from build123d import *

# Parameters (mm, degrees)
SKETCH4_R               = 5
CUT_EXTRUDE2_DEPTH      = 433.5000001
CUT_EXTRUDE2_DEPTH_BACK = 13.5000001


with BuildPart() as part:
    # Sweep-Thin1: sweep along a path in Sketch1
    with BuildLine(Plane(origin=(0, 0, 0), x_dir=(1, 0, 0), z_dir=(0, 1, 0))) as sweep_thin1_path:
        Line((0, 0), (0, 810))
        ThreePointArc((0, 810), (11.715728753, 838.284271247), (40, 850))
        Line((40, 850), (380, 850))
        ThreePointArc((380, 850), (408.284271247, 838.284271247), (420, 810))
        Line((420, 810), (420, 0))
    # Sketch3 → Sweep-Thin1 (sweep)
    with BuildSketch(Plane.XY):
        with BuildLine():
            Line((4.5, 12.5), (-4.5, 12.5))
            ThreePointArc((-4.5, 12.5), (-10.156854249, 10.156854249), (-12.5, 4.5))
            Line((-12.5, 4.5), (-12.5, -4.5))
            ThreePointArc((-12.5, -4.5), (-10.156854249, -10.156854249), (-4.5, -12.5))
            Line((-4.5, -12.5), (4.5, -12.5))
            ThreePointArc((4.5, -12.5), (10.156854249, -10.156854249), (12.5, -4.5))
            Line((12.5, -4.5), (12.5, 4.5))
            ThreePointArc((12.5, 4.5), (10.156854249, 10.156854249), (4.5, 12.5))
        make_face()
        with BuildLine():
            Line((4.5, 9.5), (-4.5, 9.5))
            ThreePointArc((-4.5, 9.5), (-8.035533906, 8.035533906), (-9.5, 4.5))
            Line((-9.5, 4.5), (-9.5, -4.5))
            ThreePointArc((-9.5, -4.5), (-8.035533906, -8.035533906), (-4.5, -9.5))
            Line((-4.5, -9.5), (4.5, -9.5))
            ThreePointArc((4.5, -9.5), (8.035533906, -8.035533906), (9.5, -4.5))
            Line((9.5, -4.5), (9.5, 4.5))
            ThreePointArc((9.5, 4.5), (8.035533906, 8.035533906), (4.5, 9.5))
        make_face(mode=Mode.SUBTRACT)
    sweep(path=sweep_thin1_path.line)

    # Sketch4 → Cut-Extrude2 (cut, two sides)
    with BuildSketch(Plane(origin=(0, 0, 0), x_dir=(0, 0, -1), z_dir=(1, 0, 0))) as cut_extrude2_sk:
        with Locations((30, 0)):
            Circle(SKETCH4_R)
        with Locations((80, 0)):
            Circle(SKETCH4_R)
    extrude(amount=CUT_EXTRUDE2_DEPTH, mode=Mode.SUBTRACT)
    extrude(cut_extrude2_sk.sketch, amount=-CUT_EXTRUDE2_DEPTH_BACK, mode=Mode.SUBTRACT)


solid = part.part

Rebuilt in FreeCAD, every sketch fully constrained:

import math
import FreeCAD as App
import Part
import Sketcher
from FreeCAD import Vector
Q = App.Units.Quantity

doc = App.newDocument("Part")
body = doc.addObject("PartDesign::Body", "Body")

# Sketch on XY plane
sketch1 = doc.addObject("Sketcher::SketchObject", "Sketch")
body.addObject(sketch1)
sketch1.AttachmentSupport = (doc.XY_Plane, [""])
sketch1.MapMode = "FlatFace"
sketch1.addGeometry([
    Part.LineSegment(Vector(4, 12, 0), Vector(-4, 12, 0)),  # 0
    Part.ArcOfCircle(Part.Circle(Vector(-4, 4, 0), Vector(0, 0, 1), 8), math.radians(90), math.radians(180)),  # 1
    Part.LineSegment(Vector(-12, 4, 0), Vector(-12, -4, 0)),  # 2
    Part.ArcOfCircle(Part.Circle(Vector(-4, -4, 0), Vector(0, 0, 1), 8), math.radians(-180), math.radians(-90)),  # 3
    Part.LineSegment(Vector(-4, -12, 0), Vector(4, -12, 0)),  # 4
    Part.ArcOfCircle(Part.Circle(Vector(4, -4, 0), Vector(0, 0, 1), 8), math.radians(-90), math.radians(0)),  # 5
    Part.LineSegment(Vector(12, -4, 0), Vector(12, 4, 0)),  # 6
    Part.ArcOfCircle(Part.Circle(Vector(4, 4, 0), Vector(0, 0, 1), 8), math.radians(0), math.radians(90)),  # 7
    Part.LineSegment(Vector(-4, 10, 0), Vector(4, 10, 0)),  # 8
    Part.ArcOfCircle(Part.Circle(Vector(4, 4, 0), Vector(0, 0, 1), 5), math.radians(0), math.radians(90)),  # 9
    Part.LineSegment(Vector(10, 4, 0), Vector(10, -4, 0)),  # 10
    Part.ArcOfCircle(Part.Circle(Vector(4, -4, 0), Vector(0, 0, 1), 5), math.radians(-90), math.radians(0)),  # 11
    Part.LineSegment(Vector(4, -10, 0), Vector(-4, -10, 0)),  # 12
    Part.ArcOfCircle(Part.Circle(Vector(-4, -4, 0), Vector(0, 0, 1), 5), math.radians(180), math.radians(270)),  # 13
    Part.LineSegment(Vector(-10, -4, 0), Vector(-10, 4, 0)),  # 14
    Part.ArcOfCircle(Part.Circle(Vector(-4, 4, 0), Vector(0, 0, 1), 5), math.radians(90), math.radians(180)),  # 15
], False)
sketch1.addConstraint([
    Sketcher.Constraint("Tangent", 0, 2, 1, 1),
    Sketcher.Constraint("Tangent", 1, 2, 2, 1),
    Sketcher.Constraint("Tangent", 2, 2, 3, 1),
    Sketcher.Constraint("Tangent", 3, 2, 4, 1),
    Sketcher.Constraint("Tangent", 4, 2, 5, 1),
    Sketcher.Constraint("Tangent", 5, 2, 6, 1),
    Sketcher.Constraint("Tangent", 6, 2, 7, 1),
    Sketcher.Constraint("Tangent", 7, 2, 0, 1),
    Sketcher.Constraint("Tangent", 8, 2, 9, 2),
    Sketcher.Constraint("Tangent", 9, 1, 10, 1),
    Sketcher.Constraint("Tangent", 10, 2, 11, 2),
    Sketcher.Constraint("Tangent", 11, 1, 12, 1),
    Sketcher.Constraint("Tangent", 12, 2, 13, 2),
    Sketcher.Constraint("Tangent", 13, 1, 14, 1),
    Sketcher.Constraint("Tangent", 14, 2, 15, 2),
    Sketcher.Constraint("Tangent", 15, 1, 8, 1),
    Sketcher.Constraint("Horizontal", 0),
    Sketcher.Constraint("Vertical", 2),
    Sketcher.Constraint("Horizontal", 4),
    Sketcher.Constraint("Vertical", 6),
    Sketcher.Constraint("Horizontal", 8),
    Sketcher.Constraint("Vertical", 10),
    Sketcher.Constraint("Horizontal", 12),
    Sketcher.Constraint("Vertical", 14),
    Sketcher.Constraint("Coincident", 9, 3, 7, 3),
    Sketcher.Constraint("Coincident", 11, 3, 5, 3),
    Sketcher.Constraint("Coincident", 13, 3, 3, 3),
    Sketcher.Constraint("Equal", 1, 3),
    Sketcher.Constraint("Equal", 3, 5),
    Sketcher.Constraint("Equal", 5, 7),
    Sketcher.Constraint("Equal", 13, 15),
    Sketcher.Constraint("Symmetric", 1, 3, 5, 3, -1, 1),
    Sketcher.Constraint("Equal", 12, 2),
    Sketcher.Constraint("Radius", 1, Q("8 mm")),
    Sketcher.Constraint("Radius", 9, Q("5 mm")),
    Sketcher.Constraint("DistanceX", 0, 2, 0, 1, Q("9 mm")),
])

# Sketch on XZ plane
sketch2 = doc.addObject("Sketcher::SketchObject", "Sketch001")
body.addObject(sketch2)
sketch2.AttachmentSupport = (doc.XZ_Plane, [""])
sketch2.MapMode = "FlatFace"
sketch2.addGeometry([
    Part.LineSegment(Vector(0, 0, 0), Vector(0, -810, 0)),  # 0
    Part.ArcOfCircle(Part.Circle(Vector(40, -810, 0), Vector(0, 0, 1), 40), math.radians(-180), math.radians(-90)),  # 1
    Part.LineSegment(Vector(40, -850, 0), Vector(380, -850, 0)),  # 2
    Part.ArcOfCircle(Part.Circle(Vector(380, -810, 0), Vector(0, 0, 1), 40), math.radians(-90), math.radians(0)),  # 3
    Part.LineSegment(Vector(420, -810, 0), Vector(420, 0, 0)),  # 4
], False)
sketch2.addConstraint([
    Sketcher.Constraint("Tangent", 0, 2, 1, 1),
    Sketcher.Constraint("Tangent", 1, 2, 2, 1),
    Sketcher.Constraint("Tangent", 2, 2, 3, 1),
    Sketcher.Constraint("Tangent", 3, 2, 4, 1),
    Sketcher.Constraint("Vertical", 0),
    Sketcher.Constraint("Horizontal", 2),
    Sketcher.Constraint("Vertical", 4),
    Sketcher.Constraint("Coincident", 0, 1, -1, 1),
    Sketcher.Constraint("Equal", 1, 3),
    Sketcher.Constraint("PointOnObject", 4, 2, -1),
    Sketcher.Constraint("Radius", 1, Q("40 mm")),
    Sketcher.Constraint("DistanceX", 2, 1, 2, 2, Q("340 mm")),
    Sketcher.Constraint("DistanceY", 0, 2, 0, 1, Q("810 mm")),
])
doc.recompute()

additivepipe = doc.addObject("PartDesign::AdditivePipe", "AdditivePipe")
body.addObject(additivepipe)
additivepipe.Profile = sketch1
additivepipe.Spine = (sketch2, ["Edge1", "Edge2", "Edge3", "Edge4", "Edge5"])

# Sketch on YZ plane
sketch3 = doc.addObject("Sketcher::SketchObject", "Sketch002")
body.addObject(sketch3)
sketch3.AttachmentSupport = (doc.YZ_Plane, [""])
sketch3.MapMode = "FlatFace"
sketch3.addGeometry([
    Part.Circle(Vector(0, -30, 0), Vector(0, 0, 1), 5),
    Part.Circle(Vector(0, -80, 0), Vector(0, 0, 1), 5),
], False)
sketch3.addConstraint([
    Sketcher.Constraint("Equal", 0, 1),
    Sketcher.Constraint("PointOnObject", 0, 3, -2),
    Sketcher.Constraint("PointOnObject", 1, 3, -2),
    Sketcher.Constraint("Diameter", 0, Q("10 mm")),
    Sketcher.Constraint("DistanceY", 0, 3, -1, 1, Q("30 mm")),
    Sketcher.Constraint("DistanceY", 1, 3, -1, 1, Q("80 mm")),
])
pocket1 = doc.addObject("PartDesign::Pocket", "Pocket")
body.addObject(pocket1)
pocket1.Profile = sketch3
pocket1.Type = "ThroughAll"
pocket1.Midplane = True

doc.recompute()
